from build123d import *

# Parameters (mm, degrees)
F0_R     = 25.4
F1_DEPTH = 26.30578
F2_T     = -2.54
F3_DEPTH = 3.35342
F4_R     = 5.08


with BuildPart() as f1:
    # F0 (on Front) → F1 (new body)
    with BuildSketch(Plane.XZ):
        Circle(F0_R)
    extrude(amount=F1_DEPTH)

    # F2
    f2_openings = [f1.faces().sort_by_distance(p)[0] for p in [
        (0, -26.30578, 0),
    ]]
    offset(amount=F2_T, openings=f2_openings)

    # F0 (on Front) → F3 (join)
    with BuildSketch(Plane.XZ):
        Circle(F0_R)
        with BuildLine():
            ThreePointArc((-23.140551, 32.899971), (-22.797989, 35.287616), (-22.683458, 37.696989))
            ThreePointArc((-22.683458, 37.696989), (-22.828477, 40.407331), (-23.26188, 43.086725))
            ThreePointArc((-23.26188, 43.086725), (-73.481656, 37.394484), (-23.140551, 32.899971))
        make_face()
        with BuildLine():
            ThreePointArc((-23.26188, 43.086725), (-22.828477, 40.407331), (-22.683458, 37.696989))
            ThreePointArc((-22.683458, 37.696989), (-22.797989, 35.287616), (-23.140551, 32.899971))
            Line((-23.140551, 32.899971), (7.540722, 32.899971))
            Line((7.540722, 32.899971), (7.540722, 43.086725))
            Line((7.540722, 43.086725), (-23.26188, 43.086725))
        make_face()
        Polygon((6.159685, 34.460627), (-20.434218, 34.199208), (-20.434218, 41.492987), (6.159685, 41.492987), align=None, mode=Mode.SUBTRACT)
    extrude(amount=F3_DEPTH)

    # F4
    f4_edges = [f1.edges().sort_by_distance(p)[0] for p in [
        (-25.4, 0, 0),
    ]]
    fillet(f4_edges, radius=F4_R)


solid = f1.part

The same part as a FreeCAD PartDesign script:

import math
import FreeCAD as App
import Part
import Sketcher
from FreeCAD import Vector
Q = App.Units.Quantity


def edges_at(feature, points):
    """Names of the edges that pass closest to the given points."""
    edges = feature.Shape.Edges
    near = lambda p: min(range(len(edges)), key=lambda i: edges[i].distToShape(Part.Vertex(*p))[0])
    return sorted({f"Edge{near(p) + 1}" for p in points})


def faces_at(feature, points):
    """Names of the faces that lie closest to the given points."""
    faces = feature.Shape.Faces
    near = lambda p: min(range(len(faces)), key=lambda i: faces[i].distToShape(Part.Vertex(*p))[0])
    return sorted({f"Face{near(p) + 1}" for p in points})

doc = App.newDocument("Part")
body = doc.addObject("PartDesign::Body", "Body")
body.AllowCompound = True

# Sketch on XZ plane
sketch1 = body.newObject("Sketcher::SketchObject", "Sketch")
sketch1.AttachmentSupport = (doc.getObject("XZ_Plane"), [""])
sketch1.MapMode = "FlatFace"
sketch1.addGeometry(Part.Circle(Vector(0, 0, 0), Vector(0, 0, 1), 25), False)
sketch1.addConstraint([
    Sketcher.Constraint("Coincident", 0, 3, -1, 1),
    Sketcher.Constraint("Diameter", 0, Q("2 in")),
])
pad1 = body.newObject("PartDesign::Pad", "Pad")
pad1.Profile = sketch1
pad1.Length = 26.30578
doc.recompute()

thickness = body.newObject("PartDesign::Thickness", "Thickness")
thickness.Base = (pad1, faces_at(pad1, [(0, -26.306, 0)]))
thickness.Value = Q("0.1 in")
thickness.Reversed = True
thickness.Join = "Arc"

# Sketch on XZ plane
sketch2 = body.newObject("Sketcher::SketchObject", "Sketch001")
sketch2.AttachmentSupport = (doc.getObject("XZ_Plane"), [""])
sketch2.MapMode = "FlatFace"
sketch2.addGeometry([
    Part.Circle(Vector(0, 0, 0), Vector(0, 0, 1), 25),  # 0
    Part.ArcOfCircle(Part.Circle(Vector(-48, 38, 0), Vector(0, 0, 1), 25), math.radians(12), math.radians(349)),  # 1
    Part.LineSegment(Vector(-23, 33, 0), Vector(8, 33, 0)),  # 2
    Part.LineSegment(Vector(8, 33, 0), Vector(8, 43, 0)),  # 3
    Part.LineSegment(Vector(8, 43, 0), Vector(-23, 43, 0)),  # 4
    Part.LineSegment(Vector(6, 41, 0), Vector(6, 34, 0)),  # 5
    Part.LineSegment(Vector(6, 34, 0), Vector(-20, 34, 0)),  # 6
    Part.LineSegment(Vector(-20, 34, 0), Vector(-20, 41, 0)),  # 7
    Part.LineSegment(Vector(-20, 41, 0), Vector(6, 41, 0)),  # 8
], False)
sketch2.addConstraint([
    Sketcher.Constraint("Coincident", 1, 2, 2, 1),
    Sketcher.Constraint("Coincident", 2, 2, 3, 1),
    Sketcher.Constraint("Coincident", 3, 2, 4, 1),
    Sketcher.Constraint("Coincident", 4, 2, 1, 1),
    Sketcher.Constraint("Coincident", 5, 2, 6, 1),
    Sketcher.Constraint("Coincident", 6, 2, 7, 1),
    Sketcher.Constraint("Coincident", 7, 2, 8, 1),
    Sketcher.Constraint("Coincident", 8, 2, 5, 1),
    Sketcher.Constraint("Horizontal", 2),
    Sketcher.Constraint("Vertical", 3),
    Sketcher.Constraint("Horizontal", 4),
    Sketcher.Constraint("Vertical", 5),
    Sketcher.Constraint("Vertical", 7),
    Sketcher.Constraint("Horizontal", 8),
    Sketcher.Constraint("Coincident", 0, 3, -1, 1),
    Sketcher.Constraint("Equal", 0, 1),
    Sketcher.Constraint("Diameter", 0, Q("2 in")),
    Sketcher.Constraint("DistanceX", 4, 2, 4, 1, Q("30.802602 mm")),
    Sketcher.Constraint("DistanceY", 5, 2, 5, 1, Q("7.03236 mm")),
    Sketcher.Constraint("DistanceY", 7, 1, 7, 2, Q("7.293779 mm")),
    Sketcher.Constraint("DistanceY", 1, 3, 7, 2, Q("3.795998 mm")),
    Sketcher.Constraint("DistanceX", 2, 1, 2, 2, Q("30.681273 mm")),
    Sketcher.Constraint("DistanceX", 8, 1, 8, 2, Q("26.593903 mm")),
    Sketcher.Constraint("DistanceY", 3, 1, 3, 2, Q("10.186754 mm")),
    Sketcher.Constraint("DistanceY", -1, 1, 1, 3, Q("37.696989 mm")),
    Sketcher.Constraint("DistanceX", 1, 2, -1, 1, Q("23.140551 mm")),
    Sketcher.Constraint("DistanceX", 6, 2, -1, 1, Q("20.434218 mm")),
])
pad2 = body.newObject("PartDesign::Pad", "Pad001")
pad2.Profile = sketch2
pad2.Length = 3.35342
doc.recompute()

fillet = body.newObject("PartDesign::Fillet", "Fillet")
fillet.Base = (pad2, edges_at(pad2, [(-25.4, 0, 0)]))
fillet.Radius = Q("0.2 in")

doc.recompute()
